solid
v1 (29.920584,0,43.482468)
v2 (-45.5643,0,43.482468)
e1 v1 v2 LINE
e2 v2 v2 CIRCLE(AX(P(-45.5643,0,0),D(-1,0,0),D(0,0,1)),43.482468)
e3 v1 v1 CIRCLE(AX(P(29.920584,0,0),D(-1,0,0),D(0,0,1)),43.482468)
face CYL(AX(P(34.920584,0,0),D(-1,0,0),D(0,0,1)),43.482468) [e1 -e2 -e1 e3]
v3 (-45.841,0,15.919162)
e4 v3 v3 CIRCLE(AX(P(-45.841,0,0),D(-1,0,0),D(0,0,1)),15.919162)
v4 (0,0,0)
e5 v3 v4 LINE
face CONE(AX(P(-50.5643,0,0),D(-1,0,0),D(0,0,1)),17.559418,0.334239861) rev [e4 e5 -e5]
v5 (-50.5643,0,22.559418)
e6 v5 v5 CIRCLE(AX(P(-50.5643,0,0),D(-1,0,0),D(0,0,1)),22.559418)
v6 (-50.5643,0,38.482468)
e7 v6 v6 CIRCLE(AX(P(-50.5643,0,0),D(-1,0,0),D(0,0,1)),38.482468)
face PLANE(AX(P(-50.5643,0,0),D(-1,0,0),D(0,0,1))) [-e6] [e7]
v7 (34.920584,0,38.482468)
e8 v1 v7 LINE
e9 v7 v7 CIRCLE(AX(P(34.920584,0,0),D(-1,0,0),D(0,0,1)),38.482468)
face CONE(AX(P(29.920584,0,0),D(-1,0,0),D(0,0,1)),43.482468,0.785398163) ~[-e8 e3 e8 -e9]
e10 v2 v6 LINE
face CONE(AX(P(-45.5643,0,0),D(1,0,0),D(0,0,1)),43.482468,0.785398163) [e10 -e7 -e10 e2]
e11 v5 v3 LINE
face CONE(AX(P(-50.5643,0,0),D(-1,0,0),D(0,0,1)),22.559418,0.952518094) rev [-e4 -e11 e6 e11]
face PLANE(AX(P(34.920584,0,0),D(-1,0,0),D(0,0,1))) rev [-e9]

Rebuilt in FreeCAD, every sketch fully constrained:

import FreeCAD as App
import Part
import Sketcher

V = App.Vector


def edges_at(feature, points):
    """Names of the edges that pass closest to the given points."""
    edges = feature.Shape.Edges
    near = lambda p: min(range(len(edges)), key=lambda i: edges[i].distToShape(Part.Vertex(*p))[0])
    return sorted({f"Edge{near(p) + 1}" for p in points})


def add_polygon(sketch, points):
    """Adds a closed chain of lines whose ends are joined by coincident constraints."""
    first, n = sketch.GeometryCount, len(points)
    for a, b in zip(points, points[1:] + points[:1]):
        sketch.addGeometry(Part.LineSegment(App.Vector(*a, 0), App.Vector(*b, 0)), False)
    for i in range(n):
        sketch.addConstraint(Sketcher.Constraint("Coincident", first + i, 2, first + (i + 1) % n, 1))

doc = App.newDocument("Part")
body = doc.addObject("PartDesign::Body", "Body")

# Sketch on XZ plane
sketch1 = doc.addObject("Sketcher::SketchObject", "Sketch")
body.addObject(sketch1)
sketch1.AttachmentSupport = (doc.XZ_Plane, [""])
sketch1.MapMode = "FlatFace"
add_polygon(sketch1, [(35, 43), (-51, 43), (-51, 18), (0, 0), (35, 0)])  # lines 0-4
sketch1.addConstraint(Sketcher.Constraint("Horizontal", 0))
sketch1.addConstraint(Sketcher.Constraint("Vertical", 1))
sketch1.addConstraint(Sketcher.Constraint("Horizontal", 3))
sketch1.addConstraint(Sketcher.Constraint("Vertical", 4))
sketch1.addConstraint(Sketcher.Constraint("Coincident", 2, 2, -1, 1))
sketch1.addConstraint(Sketcher.Constraint("DistanceY", 1, 2, 1, 1, 25.92305))
sketch1.addConstraint(Sketcher.Constraint("DistanceX", 0, 2, -1, 1, 50.5643))
sketch1.addConstraint(Sketcher.Constraint("DistanceX", 0, 2, 0, 1, 85.484884))
sketch1.addConstraint(Sketcher.Constraint("DistanceY", 4, 1, 4, 2, 43.482468))
revolution = doc.addObject("PartDesign::Revolution", "Revolution")
body.addObject(revolution)
revolution.Profile = sketch1
revolution.ReferenceAxis = (sketch1, ["H_Axis"])
revolution.Angle = 360
doc.recompute()

chamfer = doc.addObject("PartDesign::Chamfer", "Chamfer")
body.addObject(chamfer)
chamfer.Base = (revolution, edges_at(revolution, [(-50.564, 0, -43.482)]))
chamfer.Size = 5
doc.recompute()

chamfer2 = doc.addObject("PartDesign::Chamfer", "Chamfer001")
body.addObject(chamfer2)
chamfer2.Base = (chamfer, edges_at(chamfer, [(-50.564, 0, -17.559)]))
chamfer2.Size = 5
doc.recompute()

chamfer3 = doc.addObject("PartDesign::Chamfer", "Chamfer002")
body.addObject(chamfer3)
chamfer3.Base = (chamfer2, edges_at(chamfer2, [(34.921, 0, -43.482)]))
chamfer3.Size = 5

doc.recompute()
